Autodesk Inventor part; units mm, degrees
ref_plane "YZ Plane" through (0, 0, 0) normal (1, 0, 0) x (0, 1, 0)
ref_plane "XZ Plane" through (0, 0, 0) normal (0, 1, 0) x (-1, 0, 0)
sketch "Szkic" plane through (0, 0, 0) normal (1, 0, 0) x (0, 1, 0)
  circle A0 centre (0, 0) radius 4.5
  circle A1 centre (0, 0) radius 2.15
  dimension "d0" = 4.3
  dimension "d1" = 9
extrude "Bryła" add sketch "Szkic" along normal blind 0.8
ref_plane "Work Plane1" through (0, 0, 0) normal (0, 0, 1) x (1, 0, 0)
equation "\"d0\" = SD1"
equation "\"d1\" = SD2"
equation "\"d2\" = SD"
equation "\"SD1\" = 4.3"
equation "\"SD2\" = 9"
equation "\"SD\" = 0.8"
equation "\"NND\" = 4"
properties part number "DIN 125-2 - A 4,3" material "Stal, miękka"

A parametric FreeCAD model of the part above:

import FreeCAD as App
import Part
import Sketcher

V = App.Vector
Q = App.Units.Quantity

doc = App.newDocument("Part")
body = doc.addObject("PartDesign::Body", "Body")

# Sketch on YZ plane
sketch1 = doc.addObject("Sketcher::SketchObject", "Sketch")
body.addObject(sketch1)
sketch1.AttachmentSupport = (doc.YZ_Plane, [""])
sketch1.MapMode = "FlatFace"
sketch1.addGeometry(Part.Circle(V(0, 0, 0), V(0, 0, 1), 4.5), False)
sketch1.addGeometry(Part.Circle(V(0, 0, 0), V(0, 0, 1), 2.1), False)
sketch1.addConstraint(Sketcher.Constraint("Coincident", 0, 3, -1, 1))
sketch1.addConstraint(Sketcher.Constraint("Coincident", 1, 3, -1, 1))
sketch1.addConstraint(Sketcher.Constraint("Diameter", 0, Q("9 mm")))
sketch1.addConstraint(Sketcher.Constraint("Diameter", 1, Q("4.3 mm")))
pad1 = doc.addObject("PartDesign::Pad", "Pad")
body.addObject(pad1)
pad1.Profile = sketch1
pad1.Length = 0.8

doc.recompute()
